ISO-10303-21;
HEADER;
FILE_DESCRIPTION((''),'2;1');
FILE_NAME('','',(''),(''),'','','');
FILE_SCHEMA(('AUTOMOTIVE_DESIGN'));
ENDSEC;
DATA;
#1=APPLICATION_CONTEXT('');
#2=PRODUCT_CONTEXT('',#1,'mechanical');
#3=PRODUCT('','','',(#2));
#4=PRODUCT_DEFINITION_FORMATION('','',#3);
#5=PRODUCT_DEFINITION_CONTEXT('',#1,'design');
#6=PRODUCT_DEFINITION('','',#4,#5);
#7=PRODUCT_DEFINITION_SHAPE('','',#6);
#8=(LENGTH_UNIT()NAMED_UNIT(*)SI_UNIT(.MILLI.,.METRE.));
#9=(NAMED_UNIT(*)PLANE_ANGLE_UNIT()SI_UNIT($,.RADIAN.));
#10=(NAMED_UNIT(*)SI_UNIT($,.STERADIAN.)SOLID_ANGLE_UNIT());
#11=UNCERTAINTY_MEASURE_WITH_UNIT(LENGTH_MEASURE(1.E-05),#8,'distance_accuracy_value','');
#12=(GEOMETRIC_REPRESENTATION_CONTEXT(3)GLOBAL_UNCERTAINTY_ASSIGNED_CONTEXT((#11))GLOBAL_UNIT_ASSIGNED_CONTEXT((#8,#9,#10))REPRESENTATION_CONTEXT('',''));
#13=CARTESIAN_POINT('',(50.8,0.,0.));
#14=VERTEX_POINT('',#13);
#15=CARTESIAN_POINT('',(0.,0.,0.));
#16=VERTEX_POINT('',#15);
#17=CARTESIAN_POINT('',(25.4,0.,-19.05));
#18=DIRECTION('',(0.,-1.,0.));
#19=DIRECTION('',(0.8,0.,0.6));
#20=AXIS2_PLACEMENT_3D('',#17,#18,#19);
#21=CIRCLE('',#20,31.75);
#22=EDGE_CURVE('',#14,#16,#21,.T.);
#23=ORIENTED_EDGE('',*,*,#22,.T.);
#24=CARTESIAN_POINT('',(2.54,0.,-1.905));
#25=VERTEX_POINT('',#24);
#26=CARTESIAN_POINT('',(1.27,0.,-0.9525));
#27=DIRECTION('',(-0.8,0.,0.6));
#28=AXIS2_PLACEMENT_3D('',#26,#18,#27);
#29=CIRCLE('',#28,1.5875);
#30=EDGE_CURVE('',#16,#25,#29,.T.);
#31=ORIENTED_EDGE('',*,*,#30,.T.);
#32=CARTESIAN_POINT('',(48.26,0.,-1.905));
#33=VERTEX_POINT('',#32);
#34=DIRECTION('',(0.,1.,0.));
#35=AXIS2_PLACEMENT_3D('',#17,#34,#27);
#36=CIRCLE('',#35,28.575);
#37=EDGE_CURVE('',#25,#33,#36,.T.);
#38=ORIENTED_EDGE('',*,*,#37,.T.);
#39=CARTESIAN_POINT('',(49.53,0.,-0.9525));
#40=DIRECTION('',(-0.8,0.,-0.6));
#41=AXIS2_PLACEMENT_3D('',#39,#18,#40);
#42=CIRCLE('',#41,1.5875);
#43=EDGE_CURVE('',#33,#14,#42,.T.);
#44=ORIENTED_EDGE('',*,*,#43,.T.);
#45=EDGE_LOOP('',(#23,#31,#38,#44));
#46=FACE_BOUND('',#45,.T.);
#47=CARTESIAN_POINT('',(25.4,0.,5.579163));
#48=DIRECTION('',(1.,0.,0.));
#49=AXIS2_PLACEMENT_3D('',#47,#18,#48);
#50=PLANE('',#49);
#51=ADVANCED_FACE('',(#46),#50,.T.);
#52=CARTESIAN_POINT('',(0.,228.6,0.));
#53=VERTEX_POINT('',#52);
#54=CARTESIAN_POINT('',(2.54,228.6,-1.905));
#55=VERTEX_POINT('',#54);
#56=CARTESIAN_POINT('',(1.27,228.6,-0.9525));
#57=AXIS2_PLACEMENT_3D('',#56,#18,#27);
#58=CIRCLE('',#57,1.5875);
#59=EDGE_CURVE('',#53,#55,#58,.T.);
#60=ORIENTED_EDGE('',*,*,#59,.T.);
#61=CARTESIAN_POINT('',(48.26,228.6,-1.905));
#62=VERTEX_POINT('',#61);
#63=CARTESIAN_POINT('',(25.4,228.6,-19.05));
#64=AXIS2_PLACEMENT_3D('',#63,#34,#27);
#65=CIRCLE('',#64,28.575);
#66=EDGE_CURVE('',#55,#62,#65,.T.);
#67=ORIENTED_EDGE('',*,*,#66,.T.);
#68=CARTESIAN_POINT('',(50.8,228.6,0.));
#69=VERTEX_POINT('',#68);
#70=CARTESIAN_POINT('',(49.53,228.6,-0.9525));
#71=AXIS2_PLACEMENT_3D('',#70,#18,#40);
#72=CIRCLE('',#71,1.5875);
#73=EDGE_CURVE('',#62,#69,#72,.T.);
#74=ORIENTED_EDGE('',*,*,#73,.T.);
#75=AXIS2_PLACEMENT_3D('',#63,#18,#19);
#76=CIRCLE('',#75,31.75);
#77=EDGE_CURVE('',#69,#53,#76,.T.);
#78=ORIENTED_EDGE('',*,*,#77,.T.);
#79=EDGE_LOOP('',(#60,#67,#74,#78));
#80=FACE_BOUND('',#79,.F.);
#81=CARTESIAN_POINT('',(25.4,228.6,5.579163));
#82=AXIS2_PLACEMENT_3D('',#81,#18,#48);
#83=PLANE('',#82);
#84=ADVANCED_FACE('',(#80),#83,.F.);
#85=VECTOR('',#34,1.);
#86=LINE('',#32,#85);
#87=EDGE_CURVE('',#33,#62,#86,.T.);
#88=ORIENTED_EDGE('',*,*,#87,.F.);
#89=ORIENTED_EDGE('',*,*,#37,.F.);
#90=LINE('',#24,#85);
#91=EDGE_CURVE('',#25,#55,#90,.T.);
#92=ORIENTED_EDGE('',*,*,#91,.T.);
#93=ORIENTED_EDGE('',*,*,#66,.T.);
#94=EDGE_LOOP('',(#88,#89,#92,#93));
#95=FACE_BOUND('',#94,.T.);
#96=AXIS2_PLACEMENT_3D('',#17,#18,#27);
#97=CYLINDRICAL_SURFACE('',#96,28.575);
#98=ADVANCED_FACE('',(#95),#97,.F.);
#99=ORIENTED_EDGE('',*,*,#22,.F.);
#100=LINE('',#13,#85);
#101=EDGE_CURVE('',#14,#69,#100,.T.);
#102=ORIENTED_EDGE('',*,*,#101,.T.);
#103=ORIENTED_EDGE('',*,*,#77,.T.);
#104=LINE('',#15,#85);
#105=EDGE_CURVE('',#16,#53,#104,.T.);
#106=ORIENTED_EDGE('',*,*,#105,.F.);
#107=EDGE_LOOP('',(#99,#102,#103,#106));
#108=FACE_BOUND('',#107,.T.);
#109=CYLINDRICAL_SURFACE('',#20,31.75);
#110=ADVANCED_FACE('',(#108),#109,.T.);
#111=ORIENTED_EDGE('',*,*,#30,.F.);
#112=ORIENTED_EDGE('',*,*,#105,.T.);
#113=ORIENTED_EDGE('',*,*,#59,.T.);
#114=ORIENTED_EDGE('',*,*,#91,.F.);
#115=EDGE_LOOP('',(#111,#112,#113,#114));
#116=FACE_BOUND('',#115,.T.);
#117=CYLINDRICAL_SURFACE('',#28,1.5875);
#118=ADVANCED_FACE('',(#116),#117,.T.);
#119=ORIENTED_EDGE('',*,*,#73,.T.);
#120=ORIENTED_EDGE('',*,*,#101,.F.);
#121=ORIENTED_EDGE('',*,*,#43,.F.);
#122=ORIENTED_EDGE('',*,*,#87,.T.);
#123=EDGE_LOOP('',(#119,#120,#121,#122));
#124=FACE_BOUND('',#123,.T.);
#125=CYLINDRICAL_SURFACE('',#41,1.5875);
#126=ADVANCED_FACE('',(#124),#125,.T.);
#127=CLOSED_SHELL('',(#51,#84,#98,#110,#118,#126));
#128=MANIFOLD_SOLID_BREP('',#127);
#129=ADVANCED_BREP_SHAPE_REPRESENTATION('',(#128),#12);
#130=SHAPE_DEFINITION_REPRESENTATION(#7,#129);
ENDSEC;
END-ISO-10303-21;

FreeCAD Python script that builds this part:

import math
import FreeCAD as App
import Part
import Sketcher

V = App.Vector
Q = App.Units.Quantity

doc = App.newDocument("Part")
body = doc.addObject("PartDesign::Body", "Body")

# Sketch on XZ plane
sketch1 = body.newObject("Sketcher::SketchObject", "Sketch")
sketch1.AttachmentSupport = (doc.getObject("XZ_Plane"), [""])
sketch1.MapMode = "FlatFace"
sketch1.addGeometry([
    Part.ArcOfCircle(Part.Circle(V(49.53, -0.9525, 0), V(0, 0, 1), 1.5875), math.radians(-143.130102), math.radians(36.869898)),
    Part.ArcOfCircle(Part.Circle(V(25.4, -19.05, 0), V(0, 0, 1), 31.75), math.radians(36.869898), math.radians(143.130102)),
    Part.ArcOfCircle(Part.Circle(V(1.27, -0.9525, 0), V(0, 0, 1), 1.5875), math.radians(143.130102), math.radians(323.130102)),
    Part.ArcOfCircle(Part.Circle(V(25.4, -19.05, 0), V(0, 0, 1), 28.575), math.radians(36.869898), math.radians(143.130102)),
], False)
sketch1.addConstraint([
    Sketcher.Constraint("Tangent", 0, 2, 1, 1),
    Sketcher.Constraint("Tangent", 1, 2, 2, 1),
    Sketcher.Constraint("Tangent", 2, 2, 3, 2),
    Sketcher.Constraint("Tangent", 3, 1, 0, 1),
    Sketcher.Constraint("Coincident", 1, 2, -1, 1),
    Sketcher.Constraint("Coincident", 3, 3, 1, 3),
    Sketcher.Constraint("PointOnObject", 0, 2, -1),
    Sketcher.Constraint("Radius", 1, Q("1.25 in")),
    Sketcher.Constraint("DistanceX", -1, 1, 1, 3, Q("1 in")),
    Sketcher.Constraint("Radius", 0, Q("0.0625 in")),
])
pad1 = body.newObject("PartDesign::Pad", "Pad")
pad1.Profile = sketch1
pad1.Length = Q("9 in")
pad1.Reversed = True

doc.recompute()
